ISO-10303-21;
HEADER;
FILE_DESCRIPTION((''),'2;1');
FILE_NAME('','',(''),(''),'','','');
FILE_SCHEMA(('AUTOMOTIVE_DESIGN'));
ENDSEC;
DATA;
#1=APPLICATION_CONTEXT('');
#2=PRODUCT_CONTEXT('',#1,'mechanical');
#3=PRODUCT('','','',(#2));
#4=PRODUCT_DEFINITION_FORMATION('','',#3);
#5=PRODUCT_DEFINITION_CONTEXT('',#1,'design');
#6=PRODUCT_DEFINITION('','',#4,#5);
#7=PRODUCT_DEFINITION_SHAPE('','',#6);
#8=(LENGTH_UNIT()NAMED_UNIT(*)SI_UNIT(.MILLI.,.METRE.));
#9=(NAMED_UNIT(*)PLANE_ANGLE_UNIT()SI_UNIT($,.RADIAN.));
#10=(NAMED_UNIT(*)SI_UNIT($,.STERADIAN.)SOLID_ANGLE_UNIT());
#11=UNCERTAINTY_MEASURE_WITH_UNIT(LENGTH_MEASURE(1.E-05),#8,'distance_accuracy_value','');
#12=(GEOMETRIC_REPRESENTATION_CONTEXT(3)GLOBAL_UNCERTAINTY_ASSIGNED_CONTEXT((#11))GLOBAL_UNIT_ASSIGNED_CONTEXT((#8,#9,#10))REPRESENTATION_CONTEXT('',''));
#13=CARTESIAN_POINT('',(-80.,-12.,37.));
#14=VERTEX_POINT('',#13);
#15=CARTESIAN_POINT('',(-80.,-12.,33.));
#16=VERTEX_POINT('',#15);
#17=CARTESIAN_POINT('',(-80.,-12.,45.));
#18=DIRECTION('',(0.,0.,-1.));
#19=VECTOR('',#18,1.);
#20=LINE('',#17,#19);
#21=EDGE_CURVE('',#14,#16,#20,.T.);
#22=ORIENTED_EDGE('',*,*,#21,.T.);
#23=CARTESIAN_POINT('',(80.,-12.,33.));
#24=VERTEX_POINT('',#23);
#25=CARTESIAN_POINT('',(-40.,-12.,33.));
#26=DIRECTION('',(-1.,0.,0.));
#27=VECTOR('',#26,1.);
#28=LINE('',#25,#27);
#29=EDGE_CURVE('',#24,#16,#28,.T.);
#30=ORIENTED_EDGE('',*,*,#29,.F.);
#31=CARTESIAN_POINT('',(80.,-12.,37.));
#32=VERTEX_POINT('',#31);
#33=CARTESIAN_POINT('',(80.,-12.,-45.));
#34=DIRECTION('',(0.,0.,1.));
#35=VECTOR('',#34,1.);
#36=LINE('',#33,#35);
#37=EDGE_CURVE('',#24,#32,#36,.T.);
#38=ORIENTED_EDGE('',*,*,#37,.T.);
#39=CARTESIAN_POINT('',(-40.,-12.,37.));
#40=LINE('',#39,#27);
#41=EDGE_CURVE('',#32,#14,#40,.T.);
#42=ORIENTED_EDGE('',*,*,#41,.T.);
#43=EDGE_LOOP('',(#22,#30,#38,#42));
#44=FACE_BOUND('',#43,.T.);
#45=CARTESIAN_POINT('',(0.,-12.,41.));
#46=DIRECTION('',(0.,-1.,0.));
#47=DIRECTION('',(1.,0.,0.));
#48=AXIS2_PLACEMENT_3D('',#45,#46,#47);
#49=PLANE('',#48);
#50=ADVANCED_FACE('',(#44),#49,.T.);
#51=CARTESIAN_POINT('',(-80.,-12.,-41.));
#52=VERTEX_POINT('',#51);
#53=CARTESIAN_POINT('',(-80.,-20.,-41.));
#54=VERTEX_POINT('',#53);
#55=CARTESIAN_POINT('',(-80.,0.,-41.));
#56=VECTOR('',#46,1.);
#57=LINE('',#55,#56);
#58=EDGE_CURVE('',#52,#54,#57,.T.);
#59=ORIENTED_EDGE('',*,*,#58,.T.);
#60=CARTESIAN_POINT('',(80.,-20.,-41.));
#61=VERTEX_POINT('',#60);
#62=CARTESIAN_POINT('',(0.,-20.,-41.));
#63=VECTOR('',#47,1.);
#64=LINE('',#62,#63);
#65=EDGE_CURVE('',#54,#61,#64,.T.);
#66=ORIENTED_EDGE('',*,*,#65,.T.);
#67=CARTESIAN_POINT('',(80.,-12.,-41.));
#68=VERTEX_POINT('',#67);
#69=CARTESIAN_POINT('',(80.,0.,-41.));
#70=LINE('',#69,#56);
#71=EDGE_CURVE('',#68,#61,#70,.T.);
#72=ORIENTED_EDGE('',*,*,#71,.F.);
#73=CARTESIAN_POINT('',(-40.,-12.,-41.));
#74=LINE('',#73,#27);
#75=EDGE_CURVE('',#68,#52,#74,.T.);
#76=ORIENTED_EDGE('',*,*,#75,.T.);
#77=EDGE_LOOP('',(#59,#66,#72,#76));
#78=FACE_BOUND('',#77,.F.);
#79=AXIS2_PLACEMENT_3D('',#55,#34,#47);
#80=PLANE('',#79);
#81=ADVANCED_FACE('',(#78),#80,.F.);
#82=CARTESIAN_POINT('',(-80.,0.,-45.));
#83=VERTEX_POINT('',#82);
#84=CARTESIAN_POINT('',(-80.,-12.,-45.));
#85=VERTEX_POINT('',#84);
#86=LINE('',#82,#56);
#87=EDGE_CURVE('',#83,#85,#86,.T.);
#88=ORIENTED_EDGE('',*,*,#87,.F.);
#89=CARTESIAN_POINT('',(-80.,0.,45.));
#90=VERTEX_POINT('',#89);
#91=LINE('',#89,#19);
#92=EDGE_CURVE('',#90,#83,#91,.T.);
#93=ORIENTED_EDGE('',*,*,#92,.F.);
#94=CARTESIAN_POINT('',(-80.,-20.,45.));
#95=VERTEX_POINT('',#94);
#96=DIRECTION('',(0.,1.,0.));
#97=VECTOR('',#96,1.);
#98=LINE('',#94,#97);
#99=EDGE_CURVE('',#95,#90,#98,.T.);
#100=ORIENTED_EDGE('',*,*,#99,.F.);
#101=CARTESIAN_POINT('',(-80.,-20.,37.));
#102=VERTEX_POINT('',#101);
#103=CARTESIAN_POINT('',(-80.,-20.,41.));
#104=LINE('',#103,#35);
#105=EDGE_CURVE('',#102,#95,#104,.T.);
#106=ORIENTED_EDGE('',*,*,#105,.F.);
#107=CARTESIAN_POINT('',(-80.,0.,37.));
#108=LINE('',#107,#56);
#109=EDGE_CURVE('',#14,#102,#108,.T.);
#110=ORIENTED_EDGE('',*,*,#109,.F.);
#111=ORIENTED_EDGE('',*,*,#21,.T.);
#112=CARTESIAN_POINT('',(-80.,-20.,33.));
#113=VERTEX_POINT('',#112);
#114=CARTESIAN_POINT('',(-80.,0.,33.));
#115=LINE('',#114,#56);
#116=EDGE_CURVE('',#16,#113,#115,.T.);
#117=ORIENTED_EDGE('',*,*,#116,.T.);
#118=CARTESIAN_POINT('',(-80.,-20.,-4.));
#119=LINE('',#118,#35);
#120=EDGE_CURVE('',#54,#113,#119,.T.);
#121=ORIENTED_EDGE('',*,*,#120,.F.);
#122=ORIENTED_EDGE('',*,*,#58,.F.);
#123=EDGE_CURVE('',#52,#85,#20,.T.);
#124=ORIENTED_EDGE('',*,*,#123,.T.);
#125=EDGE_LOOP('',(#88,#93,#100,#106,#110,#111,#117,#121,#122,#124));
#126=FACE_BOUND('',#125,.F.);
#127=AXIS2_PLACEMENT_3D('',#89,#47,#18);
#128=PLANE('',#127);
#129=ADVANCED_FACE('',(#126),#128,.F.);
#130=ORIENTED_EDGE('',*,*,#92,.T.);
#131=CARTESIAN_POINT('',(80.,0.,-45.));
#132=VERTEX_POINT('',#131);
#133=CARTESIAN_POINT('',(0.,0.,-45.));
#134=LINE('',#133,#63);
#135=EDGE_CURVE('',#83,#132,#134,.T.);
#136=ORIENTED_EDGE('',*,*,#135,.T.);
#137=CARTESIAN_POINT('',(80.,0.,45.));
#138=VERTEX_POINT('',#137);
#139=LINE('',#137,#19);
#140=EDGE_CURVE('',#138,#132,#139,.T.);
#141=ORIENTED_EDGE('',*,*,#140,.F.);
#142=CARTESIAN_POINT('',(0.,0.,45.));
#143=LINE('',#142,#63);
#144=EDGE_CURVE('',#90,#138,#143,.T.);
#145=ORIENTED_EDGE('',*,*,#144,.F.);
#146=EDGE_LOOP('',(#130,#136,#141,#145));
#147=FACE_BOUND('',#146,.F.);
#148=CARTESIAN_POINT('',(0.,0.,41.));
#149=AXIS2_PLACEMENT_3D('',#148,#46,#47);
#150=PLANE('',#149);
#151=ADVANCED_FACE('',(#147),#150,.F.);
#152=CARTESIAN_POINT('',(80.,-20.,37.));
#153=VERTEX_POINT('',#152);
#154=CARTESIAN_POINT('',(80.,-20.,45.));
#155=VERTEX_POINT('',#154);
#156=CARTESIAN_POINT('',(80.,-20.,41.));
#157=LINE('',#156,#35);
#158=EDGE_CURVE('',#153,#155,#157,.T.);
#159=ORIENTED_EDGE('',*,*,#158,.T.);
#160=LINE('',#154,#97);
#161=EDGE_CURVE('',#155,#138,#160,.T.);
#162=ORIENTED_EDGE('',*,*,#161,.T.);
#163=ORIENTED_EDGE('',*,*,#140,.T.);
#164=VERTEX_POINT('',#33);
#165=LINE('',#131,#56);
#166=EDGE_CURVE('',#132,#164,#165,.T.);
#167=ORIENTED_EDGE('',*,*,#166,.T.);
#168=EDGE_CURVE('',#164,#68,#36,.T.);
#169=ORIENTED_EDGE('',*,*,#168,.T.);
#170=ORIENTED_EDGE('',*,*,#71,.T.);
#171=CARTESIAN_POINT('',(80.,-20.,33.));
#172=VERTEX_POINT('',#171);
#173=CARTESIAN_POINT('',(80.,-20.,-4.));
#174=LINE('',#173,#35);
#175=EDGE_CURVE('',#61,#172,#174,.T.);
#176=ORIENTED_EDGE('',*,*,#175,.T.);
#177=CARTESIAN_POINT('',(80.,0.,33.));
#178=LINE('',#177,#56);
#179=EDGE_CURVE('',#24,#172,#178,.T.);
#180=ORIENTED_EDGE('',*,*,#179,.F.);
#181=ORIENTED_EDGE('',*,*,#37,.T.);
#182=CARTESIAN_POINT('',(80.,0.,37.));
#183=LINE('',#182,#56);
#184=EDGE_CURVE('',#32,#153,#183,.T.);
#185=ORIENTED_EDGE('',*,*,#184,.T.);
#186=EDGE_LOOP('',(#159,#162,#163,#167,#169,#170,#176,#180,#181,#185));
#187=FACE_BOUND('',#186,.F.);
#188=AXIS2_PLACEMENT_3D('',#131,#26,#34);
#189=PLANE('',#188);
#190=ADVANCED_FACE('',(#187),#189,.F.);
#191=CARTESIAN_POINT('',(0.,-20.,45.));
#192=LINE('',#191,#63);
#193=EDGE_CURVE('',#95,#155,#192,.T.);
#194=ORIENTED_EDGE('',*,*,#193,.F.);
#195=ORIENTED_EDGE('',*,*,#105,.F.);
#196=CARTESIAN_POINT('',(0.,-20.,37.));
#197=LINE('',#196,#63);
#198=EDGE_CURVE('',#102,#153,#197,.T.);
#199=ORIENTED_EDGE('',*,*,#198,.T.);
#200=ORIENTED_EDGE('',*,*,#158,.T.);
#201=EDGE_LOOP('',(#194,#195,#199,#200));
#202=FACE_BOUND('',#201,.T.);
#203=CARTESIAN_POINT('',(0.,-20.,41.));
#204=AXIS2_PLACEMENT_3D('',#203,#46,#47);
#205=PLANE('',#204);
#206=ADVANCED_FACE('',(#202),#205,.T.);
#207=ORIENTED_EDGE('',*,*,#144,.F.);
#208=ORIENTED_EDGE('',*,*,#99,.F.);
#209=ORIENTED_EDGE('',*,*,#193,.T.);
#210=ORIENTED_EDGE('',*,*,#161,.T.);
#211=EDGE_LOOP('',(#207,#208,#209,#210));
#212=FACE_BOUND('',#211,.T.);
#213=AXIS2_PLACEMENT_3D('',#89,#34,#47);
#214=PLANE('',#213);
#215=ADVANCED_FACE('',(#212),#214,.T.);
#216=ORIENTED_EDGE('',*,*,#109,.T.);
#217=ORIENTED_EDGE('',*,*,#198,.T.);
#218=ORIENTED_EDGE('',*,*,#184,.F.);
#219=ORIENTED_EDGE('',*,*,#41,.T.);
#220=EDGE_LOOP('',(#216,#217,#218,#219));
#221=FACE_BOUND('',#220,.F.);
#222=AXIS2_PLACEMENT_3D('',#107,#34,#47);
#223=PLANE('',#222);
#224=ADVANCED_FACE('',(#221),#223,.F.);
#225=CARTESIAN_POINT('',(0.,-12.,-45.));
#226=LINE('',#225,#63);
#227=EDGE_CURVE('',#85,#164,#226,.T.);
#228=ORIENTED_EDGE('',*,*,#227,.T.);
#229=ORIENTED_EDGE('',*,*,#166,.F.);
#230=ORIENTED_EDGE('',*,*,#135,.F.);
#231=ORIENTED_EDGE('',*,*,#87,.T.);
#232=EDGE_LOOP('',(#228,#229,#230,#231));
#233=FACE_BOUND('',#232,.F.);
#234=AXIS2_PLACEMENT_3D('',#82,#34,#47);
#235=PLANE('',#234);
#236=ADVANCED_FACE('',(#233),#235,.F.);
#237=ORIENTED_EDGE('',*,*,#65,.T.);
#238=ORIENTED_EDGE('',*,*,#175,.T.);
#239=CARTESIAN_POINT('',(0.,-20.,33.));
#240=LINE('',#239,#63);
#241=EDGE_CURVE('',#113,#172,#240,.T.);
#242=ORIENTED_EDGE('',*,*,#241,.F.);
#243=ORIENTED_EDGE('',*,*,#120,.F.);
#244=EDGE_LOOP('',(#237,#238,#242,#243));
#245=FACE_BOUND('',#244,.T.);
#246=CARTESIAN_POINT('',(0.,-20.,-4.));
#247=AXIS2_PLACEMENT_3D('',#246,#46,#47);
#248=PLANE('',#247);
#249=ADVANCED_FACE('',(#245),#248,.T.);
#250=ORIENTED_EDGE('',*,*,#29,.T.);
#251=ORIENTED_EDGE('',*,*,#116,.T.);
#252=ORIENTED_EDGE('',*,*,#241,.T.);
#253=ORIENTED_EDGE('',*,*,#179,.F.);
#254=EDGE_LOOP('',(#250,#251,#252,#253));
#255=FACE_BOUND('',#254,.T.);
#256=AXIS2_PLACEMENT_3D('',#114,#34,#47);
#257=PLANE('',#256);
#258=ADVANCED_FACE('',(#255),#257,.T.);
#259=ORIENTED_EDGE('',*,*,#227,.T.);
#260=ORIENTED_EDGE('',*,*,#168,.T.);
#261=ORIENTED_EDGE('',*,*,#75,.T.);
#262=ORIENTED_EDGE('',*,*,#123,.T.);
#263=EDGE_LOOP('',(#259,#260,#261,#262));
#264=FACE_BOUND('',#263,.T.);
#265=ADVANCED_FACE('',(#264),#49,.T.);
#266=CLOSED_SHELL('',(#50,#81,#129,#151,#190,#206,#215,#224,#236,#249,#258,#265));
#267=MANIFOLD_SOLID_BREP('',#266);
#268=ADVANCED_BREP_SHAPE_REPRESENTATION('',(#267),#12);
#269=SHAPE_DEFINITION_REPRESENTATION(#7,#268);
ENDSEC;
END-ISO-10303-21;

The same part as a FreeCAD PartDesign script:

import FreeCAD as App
import Part
import Sketcher
Q = App.Units.Quantity

doc = App.newDocument("Part")
body = doc.addObject("PartDesign::Body", "Body")

sketch1 = body.newObject("Sketcher::SketchObject", "Sketch")
sketch1.AttachmentSupport = (doc.getObject("XZ_Plane"), [""])
sketch1.MapMode = "FlatFace"
sketch1.addGeometry([
    Part.LineSegment(App.Vector(-80, 45, 0), App.Vector(-80, -45, 0)),
    Part.LineSegment(App.Vector(-80, -45, 0), App.Vector(80, -45, 0)),
    Part.LineSegment(App.Vector(80, -45, 0), App.Vector(80, 45, 0)),
    Part.LineSegment(App.Vector(80, 45, 0), App.Vector(-80, 45, 0)),
], False)
sketch1.addConstraint([
    Sketcher.Constraint("Coincident", 0, 2, 1, 1),
    Sketcher.Constraint("Coincident", 1, 2, 2, 1),
    Sketcher.Constraint("Coincident", 2, 2, 3, 1),
    Sketcher.Constraint("Coincident", 3, 2, 0, 1),
    Sketcher.Constraint("Vertical", 0),
    Sketcher.Constraint("Horizontal", 1),
    Sketcher.Constraint("Vertical", 2),
    Sketcher.Constraint("Horizontal", 3),
    Sketcher.Constraint("Symmetric", 0, 2, 2, 2, -1, 1),
    Sketcher.Constraint("DistanceX", 1, 1, 1, 2, Q("160 mm")),
    Sketcher.Constraint("DistanceY", 0, 2, 0, 1, Q("90 mm")),
])
pad1 = body.newObject("PartDesign::Pad", "Pad")
pad1.Profile = sketch1
pad1.Length = 12

sketch2 = body.newObject("Sketcher::SketchObject", "Sketch001")
sketch2.AttachmentSupport = (doc.getObject("XZ_Plane"), [""])
sketch2.MapMode = "FlatFace"
sketch2.addGeometry([
    Part.LineSegment(App.Vector(-80, 45, 0), App.Vector(-80, 37, 0)),
    Part.LineSegment(App.Vector(-80, 37, 0), App.Vector(80, 37, 0)),
    Part.LineSegment(App.Vector(80, 37, 0), App.Vector(80, 45, 0)),
    Part.LineSegment(App.Vector(80, 45, 0), App.Vector(-80, 45, 0)),
    Part.LineSegment(App.Vector(-80, 33, 0), App.Vector(-80, -41, 0)),
    Part.LineSegment(App.Vector(-80, -41, 0), App.Vector(80, -41, 0)),
    Part.LineSegment(App.Vector(80, -41, 0), App.Vector(80, 33, 0)),
    Part.LineSegment(App.Vector(80, 33, 0), App.Vector(-80, 33, 0)),
], False)
sketch2.addConstraint([
    Sketcher.Constraint("Coincident", 0, 2, 1, 1),
    Sketcher.Constraint("Coincident", 1, 2, 2, 1),
    Sketcher.Constraint("Coincident", 2, 2, 3, 1),
    Sketcher.Constraint("Coincident", 3, 2, 0, 1),
    Sketcher.Constraint("Coincident", 4, 2, 5, 1),
    Sketcher.Constraint("Coincident", 5, 2, 6, 1),
    Sketcher.Constraint("Coincident", 6, 2, 7, 1),
    Sketcher.Constraint("Coincident", 7, 2, 4, 1),
    Sketcher.Constraint("Vertical", 0),
    Sketcher.Constraint("Horizontal", 1),
    Sketcher.Constraint("Vertical", 2),
    Sketcher.Constraint("Horizontal", 3),
    Sketcher.Constraint("Vertical", 4),
    Sketcher.Constraint("Horizontal", 5),
    Sketcher.Constraint("Vertical", 6),
    Sketcher.Constraint("Horizontal", 7),
    Sketcher.Constraint("Vertical", 3, 2, 4, 2),
    Sketcher.Constraint("Vertical", 2, 2, 5, 2),
    Sketcher.Constraint("DistanceX", 1, 1, 1, 2, Q("160 mm")),
    Sketcher.Constraint("DistanceY", 0, 2, 0, 1, Q("8 mm")),
    Sketcher.Constraint("DistanceY", 4, 2, 4, 1, Q("74 mm")),
    Sketcher.Constraint("DistanceX", 0, 2, -1, 1, Q("80 mm")),
    Sketcher.Constraint("DistanceY", -1, 1, 0, 2, Q("37 mm")),
    Sketcher.Constraint("DistanceY", 4, 2, -1, 1, Q("41 mm")),
])
pad2 = body.newObject("PartDesign::Pad", "Pad001")
pad2.Profile = sketch2
pad2.Length = 20

doc.recompute()
